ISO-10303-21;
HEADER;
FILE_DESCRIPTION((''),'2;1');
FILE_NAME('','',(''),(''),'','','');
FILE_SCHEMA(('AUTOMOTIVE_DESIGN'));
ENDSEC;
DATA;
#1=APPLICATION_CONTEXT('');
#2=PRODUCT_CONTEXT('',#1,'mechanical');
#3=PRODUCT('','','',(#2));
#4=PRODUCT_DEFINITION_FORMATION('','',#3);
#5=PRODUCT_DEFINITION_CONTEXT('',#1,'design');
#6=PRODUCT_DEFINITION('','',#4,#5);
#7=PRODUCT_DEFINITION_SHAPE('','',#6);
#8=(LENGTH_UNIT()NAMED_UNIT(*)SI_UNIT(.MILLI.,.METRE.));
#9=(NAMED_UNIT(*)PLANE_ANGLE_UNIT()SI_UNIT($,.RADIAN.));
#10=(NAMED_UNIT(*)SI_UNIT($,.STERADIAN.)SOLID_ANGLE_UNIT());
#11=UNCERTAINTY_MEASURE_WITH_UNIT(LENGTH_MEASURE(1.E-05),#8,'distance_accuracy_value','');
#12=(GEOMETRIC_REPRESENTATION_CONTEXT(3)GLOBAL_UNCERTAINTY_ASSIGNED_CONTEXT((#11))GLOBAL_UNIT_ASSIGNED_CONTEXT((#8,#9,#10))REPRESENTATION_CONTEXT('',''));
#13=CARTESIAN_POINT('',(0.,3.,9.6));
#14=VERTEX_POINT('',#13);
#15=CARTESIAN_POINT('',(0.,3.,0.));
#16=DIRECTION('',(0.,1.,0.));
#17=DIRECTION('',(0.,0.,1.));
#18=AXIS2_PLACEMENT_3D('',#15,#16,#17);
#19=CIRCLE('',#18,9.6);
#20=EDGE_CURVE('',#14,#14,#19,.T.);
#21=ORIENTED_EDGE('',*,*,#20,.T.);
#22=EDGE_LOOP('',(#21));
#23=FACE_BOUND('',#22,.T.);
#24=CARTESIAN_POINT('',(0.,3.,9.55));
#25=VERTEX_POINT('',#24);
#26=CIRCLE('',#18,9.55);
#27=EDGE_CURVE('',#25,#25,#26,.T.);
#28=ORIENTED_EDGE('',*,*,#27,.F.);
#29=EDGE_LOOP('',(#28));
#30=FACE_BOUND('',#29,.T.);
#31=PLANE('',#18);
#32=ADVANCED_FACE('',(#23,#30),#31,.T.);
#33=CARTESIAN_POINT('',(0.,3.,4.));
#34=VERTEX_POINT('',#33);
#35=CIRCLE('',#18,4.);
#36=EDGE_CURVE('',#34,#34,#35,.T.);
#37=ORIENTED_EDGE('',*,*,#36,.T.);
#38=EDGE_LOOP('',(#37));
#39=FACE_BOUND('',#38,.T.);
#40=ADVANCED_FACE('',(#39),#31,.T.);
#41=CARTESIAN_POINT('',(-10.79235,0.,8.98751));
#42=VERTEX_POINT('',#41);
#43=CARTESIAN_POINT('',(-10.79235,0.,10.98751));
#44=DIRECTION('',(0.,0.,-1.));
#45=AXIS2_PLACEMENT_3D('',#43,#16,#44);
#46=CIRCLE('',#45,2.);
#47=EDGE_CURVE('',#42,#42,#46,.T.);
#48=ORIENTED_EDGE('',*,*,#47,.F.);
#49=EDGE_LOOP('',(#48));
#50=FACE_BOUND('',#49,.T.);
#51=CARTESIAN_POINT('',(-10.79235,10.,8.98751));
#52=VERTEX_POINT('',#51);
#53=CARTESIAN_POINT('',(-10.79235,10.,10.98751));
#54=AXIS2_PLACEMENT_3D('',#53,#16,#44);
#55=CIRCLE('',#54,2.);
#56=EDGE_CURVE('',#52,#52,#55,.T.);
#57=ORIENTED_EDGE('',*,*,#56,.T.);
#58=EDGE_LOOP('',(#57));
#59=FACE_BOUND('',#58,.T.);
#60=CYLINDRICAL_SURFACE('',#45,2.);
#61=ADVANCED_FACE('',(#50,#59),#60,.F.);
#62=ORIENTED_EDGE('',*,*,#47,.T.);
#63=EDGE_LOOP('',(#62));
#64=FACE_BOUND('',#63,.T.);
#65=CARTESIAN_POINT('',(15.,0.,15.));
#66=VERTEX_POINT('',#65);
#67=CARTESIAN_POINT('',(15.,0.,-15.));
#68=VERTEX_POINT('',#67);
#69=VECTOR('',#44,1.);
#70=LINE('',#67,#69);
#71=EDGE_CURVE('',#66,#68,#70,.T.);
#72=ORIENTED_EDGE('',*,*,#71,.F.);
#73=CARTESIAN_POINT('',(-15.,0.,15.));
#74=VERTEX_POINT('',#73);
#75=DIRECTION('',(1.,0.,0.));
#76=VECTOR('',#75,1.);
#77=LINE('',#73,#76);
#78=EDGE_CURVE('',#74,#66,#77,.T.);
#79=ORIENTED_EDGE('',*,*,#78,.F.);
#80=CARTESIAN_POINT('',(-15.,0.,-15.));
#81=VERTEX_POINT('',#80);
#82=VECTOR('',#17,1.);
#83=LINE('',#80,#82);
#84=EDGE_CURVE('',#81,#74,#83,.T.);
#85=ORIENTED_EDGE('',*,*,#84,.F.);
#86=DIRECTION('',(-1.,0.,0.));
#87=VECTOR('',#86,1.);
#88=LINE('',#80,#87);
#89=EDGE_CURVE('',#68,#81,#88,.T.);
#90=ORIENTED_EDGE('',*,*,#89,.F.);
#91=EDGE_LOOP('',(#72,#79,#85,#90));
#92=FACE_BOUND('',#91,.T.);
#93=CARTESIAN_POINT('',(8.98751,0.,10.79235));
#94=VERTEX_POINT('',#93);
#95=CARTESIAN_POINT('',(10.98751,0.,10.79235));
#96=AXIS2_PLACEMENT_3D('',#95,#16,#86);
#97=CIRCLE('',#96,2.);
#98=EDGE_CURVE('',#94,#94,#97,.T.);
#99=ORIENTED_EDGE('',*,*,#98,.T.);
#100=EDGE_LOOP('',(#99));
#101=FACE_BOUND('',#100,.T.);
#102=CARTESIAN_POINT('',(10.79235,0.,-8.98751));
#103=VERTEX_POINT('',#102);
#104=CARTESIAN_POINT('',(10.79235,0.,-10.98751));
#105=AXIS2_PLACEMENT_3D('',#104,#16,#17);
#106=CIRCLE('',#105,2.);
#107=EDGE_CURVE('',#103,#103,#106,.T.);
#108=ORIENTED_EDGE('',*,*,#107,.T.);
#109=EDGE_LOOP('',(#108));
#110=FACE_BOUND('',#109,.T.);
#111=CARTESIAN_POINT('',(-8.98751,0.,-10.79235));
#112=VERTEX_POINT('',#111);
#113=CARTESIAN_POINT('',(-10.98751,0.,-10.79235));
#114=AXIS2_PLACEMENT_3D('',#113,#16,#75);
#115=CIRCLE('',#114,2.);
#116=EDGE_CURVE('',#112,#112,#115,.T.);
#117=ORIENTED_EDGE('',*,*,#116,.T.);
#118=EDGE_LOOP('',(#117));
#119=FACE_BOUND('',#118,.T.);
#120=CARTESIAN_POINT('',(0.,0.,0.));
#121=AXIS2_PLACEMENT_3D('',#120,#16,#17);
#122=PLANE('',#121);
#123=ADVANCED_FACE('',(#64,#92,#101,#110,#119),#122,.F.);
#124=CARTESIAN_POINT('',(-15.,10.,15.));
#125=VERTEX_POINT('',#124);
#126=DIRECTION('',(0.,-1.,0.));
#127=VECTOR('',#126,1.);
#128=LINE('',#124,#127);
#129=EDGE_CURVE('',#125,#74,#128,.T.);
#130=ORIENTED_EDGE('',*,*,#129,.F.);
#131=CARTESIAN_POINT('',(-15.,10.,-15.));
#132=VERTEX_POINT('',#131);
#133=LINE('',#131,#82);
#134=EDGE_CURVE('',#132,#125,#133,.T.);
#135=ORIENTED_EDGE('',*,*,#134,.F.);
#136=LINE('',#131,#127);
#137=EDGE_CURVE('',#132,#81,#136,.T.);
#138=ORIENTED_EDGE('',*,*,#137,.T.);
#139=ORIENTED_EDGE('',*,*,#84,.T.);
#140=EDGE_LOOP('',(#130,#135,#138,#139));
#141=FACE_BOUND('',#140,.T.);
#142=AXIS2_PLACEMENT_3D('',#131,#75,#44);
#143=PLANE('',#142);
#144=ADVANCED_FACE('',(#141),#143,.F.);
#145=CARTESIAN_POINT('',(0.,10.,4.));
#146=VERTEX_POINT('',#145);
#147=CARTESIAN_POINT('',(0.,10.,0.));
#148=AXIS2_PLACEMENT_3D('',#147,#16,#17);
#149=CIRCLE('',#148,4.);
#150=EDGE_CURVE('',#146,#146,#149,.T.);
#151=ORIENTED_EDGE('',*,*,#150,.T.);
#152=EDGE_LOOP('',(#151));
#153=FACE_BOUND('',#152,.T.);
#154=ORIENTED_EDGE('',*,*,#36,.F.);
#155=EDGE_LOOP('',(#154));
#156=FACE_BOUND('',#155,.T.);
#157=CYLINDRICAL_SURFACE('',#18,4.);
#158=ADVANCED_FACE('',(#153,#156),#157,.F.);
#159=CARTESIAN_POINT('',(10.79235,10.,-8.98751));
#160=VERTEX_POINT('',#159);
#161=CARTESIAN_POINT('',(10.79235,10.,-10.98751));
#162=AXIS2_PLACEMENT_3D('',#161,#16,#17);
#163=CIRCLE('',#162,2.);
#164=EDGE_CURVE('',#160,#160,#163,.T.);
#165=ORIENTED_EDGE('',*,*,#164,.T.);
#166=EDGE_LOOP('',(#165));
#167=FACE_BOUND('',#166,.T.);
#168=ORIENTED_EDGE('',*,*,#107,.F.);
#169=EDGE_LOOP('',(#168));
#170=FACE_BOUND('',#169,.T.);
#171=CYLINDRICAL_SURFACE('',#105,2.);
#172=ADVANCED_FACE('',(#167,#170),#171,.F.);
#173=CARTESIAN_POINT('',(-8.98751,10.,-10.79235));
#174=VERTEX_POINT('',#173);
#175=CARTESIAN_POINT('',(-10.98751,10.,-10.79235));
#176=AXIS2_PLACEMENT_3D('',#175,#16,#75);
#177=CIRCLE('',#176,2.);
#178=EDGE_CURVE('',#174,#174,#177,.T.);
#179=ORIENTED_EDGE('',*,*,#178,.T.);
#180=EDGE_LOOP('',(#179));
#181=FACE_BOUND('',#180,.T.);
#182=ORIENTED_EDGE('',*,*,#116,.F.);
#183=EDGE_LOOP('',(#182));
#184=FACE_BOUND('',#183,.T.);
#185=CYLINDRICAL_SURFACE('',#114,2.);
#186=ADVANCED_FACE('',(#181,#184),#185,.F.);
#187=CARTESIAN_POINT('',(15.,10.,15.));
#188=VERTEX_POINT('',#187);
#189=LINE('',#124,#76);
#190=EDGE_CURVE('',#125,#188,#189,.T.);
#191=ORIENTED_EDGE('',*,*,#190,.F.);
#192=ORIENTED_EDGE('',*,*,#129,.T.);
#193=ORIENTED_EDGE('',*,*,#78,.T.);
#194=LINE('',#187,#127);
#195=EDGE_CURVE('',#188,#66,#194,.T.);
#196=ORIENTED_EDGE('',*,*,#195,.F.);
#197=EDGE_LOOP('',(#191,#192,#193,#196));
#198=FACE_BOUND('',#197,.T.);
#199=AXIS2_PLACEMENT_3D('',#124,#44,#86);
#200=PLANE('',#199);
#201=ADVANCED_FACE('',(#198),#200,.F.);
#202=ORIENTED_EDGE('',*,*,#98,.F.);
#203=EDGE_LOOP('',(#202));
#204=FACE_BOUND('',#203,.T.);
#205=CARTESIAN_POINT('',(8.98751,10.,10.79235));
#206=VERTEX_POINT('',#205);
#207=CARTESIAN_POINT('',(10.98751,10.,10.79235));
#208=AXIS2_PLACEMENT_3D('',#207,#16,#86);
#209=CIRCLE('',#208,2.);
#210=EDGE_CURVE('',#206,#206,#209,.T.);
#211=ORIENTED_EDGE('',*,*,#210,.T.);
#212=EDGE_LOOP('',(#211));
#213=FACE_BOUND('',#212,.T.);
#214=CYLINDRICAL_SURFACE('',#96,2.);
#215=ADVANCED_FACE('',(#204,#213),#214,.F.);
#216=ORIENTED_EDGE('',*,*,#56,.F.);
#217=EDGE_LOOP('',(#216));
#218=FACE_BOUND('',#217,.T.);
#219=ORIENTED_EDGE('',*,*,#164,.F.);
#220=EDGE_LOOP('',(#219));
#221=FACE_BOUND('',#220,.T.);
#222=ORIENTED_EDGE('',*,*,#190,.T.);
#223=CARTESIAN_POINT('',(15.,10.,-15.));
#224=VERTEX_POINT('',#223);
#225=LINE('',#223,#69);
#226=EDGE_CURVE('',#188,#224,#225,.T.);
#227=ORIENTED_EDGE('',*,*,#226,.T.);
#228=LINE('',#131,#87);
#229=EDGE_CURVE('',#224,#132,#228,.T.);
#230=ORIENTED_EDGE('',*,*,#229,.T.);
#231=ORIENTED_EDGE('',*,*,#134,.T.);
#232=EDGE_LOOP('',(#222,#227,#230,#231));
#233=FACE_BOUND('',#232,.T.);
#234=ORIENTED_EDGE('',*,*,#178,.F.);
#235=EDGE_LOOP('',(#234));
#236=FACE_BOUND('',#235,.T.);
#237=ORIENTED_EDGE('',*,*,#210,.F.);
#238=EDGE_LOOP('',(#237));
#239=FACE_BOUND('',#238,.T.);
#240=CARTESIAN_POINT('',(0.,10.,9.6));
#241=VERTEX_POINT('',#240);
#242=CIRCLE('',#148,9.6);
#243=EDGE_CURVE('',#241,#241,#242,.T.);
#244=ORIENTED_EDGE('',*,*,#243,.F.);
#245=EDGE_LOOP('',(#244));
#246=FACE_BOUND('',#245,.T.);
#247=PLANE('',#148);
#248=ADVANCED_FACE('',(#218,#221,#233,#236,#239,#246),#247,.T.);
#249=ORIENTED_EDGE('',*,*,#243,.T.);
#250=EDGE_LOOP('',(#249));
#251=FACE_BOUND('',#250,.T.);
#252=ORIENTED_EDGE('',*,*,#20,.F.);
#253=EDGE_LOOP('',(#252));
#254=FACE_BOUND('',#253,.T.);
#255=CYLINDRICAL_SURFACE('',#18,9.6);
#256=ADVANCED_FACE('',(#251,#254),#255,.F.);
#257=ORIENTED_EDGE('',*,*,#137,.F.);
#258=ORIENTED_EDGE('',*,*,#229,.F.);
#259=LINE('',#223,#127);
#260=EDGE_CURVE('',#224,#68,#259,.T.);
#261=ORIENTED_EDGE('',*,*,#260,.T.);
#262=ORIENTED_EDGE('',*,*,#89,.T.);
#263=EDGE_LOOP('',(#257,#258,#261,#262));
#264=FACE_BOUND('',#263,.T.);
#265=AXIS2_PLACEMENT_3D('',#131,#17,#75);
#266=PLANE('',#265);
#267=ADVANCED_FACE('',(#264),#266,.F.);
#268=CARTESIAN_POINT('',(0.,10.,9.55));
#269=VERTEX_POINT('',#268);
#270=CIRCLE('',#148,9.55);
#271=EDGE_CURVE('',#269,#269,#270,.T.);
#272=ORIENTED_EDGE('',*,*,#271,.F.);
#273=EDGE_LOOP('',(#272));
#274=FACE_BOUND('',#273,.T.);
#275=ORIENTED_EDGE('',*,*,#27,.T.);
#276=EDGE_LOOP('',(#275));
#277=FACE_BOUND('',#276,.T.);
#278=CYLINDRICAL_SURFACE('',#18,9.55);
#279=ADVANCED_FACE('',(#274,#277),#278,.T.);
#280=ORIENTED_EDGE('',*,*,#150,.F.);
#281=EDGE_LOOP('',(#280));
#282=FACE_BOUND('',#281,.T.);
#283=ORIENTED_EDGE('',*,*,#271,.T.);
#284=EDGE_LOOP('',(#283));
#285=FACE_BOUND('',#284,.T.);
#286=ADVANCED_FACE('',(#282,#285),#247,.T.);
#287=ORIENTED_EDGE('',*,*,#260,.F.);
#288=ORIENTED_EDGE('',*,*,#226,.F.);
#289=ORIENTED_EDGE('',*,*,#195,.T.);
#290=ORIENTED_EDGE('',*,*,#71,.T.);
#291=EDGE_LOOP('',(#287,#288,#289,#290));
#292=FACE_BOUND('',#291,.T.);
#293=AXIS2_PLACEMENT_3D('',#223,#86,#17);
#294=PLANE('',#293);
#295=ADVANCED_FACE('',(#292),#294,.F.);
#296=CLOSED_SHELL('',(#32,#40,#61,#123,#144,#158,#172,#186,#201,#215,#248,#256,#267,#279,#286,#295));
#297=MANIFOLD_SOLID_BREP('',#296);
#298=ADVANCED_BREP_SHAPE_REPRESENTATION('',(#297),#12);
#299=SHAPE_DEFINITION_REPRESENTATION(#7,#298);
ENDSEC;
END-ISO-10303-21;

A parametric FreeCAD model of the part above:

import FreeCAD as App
import Part
import Sketcher

V = App.Vector
Q = App.Units.Quantity


def add_polygon(sketch, points):
    """Adds a closed chain of lines whose ends are joined by coincident constraints."""
    first, n = sketch.GeometryCount, len(points)
    for a, b in zip(points, points[1:] + points[:1]):
        sketch.addGeometry(Part.LineSegment(App.Vector(*a, 0), App.Vector(*b, 0)), False)
    for i in range(n):
        sketch.addConstraint(Sketcher.Constraint("Coincident", first + i, 2, first + (i + 1) % n, 1))

doc = App.newDocument("Part")
params = doc.addObject("Spreadsheet::Sheet", "Params")
for row, (alias, value) in enumerate([
    ("sketch1_width", "30 mm"),
    ("pad1_length", "10 mm"),
    ("sketch2_diameter", "19.2 mm"),
    ("sketch2_diameter2", "19.1 mm"),
    ("pocket1_length", "7 mm"),
    ("sketch3_diameter", "8 mm"),
    ("pocket2_length", "7 mm"),
    ("sketch4_diameter", "4 mm"),
    ("pocket3_length", "10 mm"),
], start=1):
    params.set(f"A{row}", alias)
    params.set(f"B{row}", "=" + value)
    params.setAlias(f"B{row}", alias)

body = doc.addObject("PartDesign::Body", "Body")

sketch1 = body.newObject("Sketcher::SketchObject", "Sketch")
sketch1.AttachmentSupport = (doc.getObject("XZ_Plane"), [""])
sketch1.MapMode = "FlatFace"
add_polygon(sketch1, [(-15, -15), (-15, 15), (15, 15), (15, -15)])
sketch1.addConstraint([
    Sketcher.Constraint("Vertical", 0),
    Sketcher.Constraint("Horizontal", 1),
    Sketcher.Constraint("Vertical", 2),
    Sketcher.Constraint("Horizontal", 3),
    Sketcher.Constraint("Symmetric", 0, 2, 2, 2, -1, 1),
    Sketcher.Constraint("Equal", 3, 0),
    Sketcher.Constraint("DistanceX", 1, 1, 1, 2, Q("30 mm")),
])
sketch1.setExpression("Constraints[10]", "Params.sketch1_width")
pad1 = body.newObject("PartDesign::Pad", "Pad")
pad1.Profile = sketch1
pad1.setExpression("Length", "Params.pad1_length")
pad1.Reversed = True

sketch2 = body.newObject("Sketcher::SketchObject", "Sketch001")
sketch2.AttachmentSupport = (doc.getObject("XZ_Plane"), [""])
sketch2.MapMode = "FlatFace"
sketch2.AttachmentOffset = App.Placement(V(0, 0, -10), App.Rotation())
sketch2.addGeometry([
    Part.Circle(V(0, 0, 0), V(0, 0, 1), 9.6),
    Part.Circle(V(0, 0, 0), V(0, 0, 1), 9.55),
], False)
sketch2.addConstraint([
    Sketcher.Constraint("Coincident", 0, 3, -1, 1),
    Sketcher.Constraint("Coincident", 1, 3, -1, 1),
    Sketcher.Constraint("Diameter", 0, Q("19.2 mm")),
    Sketcher.Constraint("Diameter", 1, Q("19.1 mm")),
])
sketch2.setExpression("Constraints[2]", "Params.sketch2_diameter")
sketch2.setExpression("Constraints[3]", "Params.sketch2_diameter2")
pocket1 = body.newObject("PartDesign::Pocket", "Pocket")
pocket1.Profile = sketch2
pocket1.setExpression("Length", "Params.pocket1_length")
pocket1.Reversed = True

sketch3 = body.newObject("Sketcher::SketchObject", "Sketch002")
sketch3.AttachmentSupport = (doc.getObject("XZ_Plane"), [""])
sketch3.MapMode = "FlatFace"
sketch3.AttachmentOffset = App.Placement(V(0, 0, -10), App.Rotation())
sketch3.addGeometry(Part.Circle(V(0, 0, 0), V(0, 0, 1), 4), False)
sketch3.addConstraint([
    Sketcher.Constraint("Coincident", 0, 3, -1, 1),
    Sketcher.Constraint("Diameter", 0, Q("8 mm")),
])
sketch3.setExpression("Constraints[1]", "Params.sketch3_diameter")
pocket2 = body.newObject("PartDesign::Pocket", "Pocket001")
pocket2.Profile = sketch3
pocket2.setExpression("Length", "Params.pocket2_length")
pocket2.Reversed = True

sketch4 = body.newObject("Sketcher::SketchObject", "Sketch003")
sketch4.AttachmentSupport = (doc.getObject("XZ_Plane"), [""])
sketch4.MapMode = "FlatFace"
sketch4.AttachmentOffset = App.Placement(V(0, 0, -10), App.Rotation())
sketch4.addGeometry(Part.Circle(V(10.79235, -10.98751, 0), V(0, 0, 1), 2), False)
sketch4.addConstraint([
    Sketcher.Constraint("Diameter", 0, Q("4 mm")),
    Sketcher.Constraint("DistanceX", -1, 1, 0, 3, Q("10.79235 mm")),
    Sketcher.Constraint("DistanceY", 0, 3, -1, 1, Q("10.98751 mm")),
])
sketch4.setExpression("Constraints[0]", "Params.sketch4_diameter")
pocket3 = body.newObject("PartDesign::Pocket", "Pocket002")
pocket3.Profile = sketch4
pocket3.setExpression("Length", "Params.pocket3_length")
pocket3.Reversed = True
doc.recompute()

polarpattern = body.newObject("PartDesign::PolarPattern", "PolarPattern")
polarpattern.Originals = [pocket3]
polarpattern.Axis = (doc.getObject("Y_Axis"), [""])
polarpattern.Angle = 360
polarpattern.Occurrences = 4
body.Tip = polarpattern

doc.recompute()
